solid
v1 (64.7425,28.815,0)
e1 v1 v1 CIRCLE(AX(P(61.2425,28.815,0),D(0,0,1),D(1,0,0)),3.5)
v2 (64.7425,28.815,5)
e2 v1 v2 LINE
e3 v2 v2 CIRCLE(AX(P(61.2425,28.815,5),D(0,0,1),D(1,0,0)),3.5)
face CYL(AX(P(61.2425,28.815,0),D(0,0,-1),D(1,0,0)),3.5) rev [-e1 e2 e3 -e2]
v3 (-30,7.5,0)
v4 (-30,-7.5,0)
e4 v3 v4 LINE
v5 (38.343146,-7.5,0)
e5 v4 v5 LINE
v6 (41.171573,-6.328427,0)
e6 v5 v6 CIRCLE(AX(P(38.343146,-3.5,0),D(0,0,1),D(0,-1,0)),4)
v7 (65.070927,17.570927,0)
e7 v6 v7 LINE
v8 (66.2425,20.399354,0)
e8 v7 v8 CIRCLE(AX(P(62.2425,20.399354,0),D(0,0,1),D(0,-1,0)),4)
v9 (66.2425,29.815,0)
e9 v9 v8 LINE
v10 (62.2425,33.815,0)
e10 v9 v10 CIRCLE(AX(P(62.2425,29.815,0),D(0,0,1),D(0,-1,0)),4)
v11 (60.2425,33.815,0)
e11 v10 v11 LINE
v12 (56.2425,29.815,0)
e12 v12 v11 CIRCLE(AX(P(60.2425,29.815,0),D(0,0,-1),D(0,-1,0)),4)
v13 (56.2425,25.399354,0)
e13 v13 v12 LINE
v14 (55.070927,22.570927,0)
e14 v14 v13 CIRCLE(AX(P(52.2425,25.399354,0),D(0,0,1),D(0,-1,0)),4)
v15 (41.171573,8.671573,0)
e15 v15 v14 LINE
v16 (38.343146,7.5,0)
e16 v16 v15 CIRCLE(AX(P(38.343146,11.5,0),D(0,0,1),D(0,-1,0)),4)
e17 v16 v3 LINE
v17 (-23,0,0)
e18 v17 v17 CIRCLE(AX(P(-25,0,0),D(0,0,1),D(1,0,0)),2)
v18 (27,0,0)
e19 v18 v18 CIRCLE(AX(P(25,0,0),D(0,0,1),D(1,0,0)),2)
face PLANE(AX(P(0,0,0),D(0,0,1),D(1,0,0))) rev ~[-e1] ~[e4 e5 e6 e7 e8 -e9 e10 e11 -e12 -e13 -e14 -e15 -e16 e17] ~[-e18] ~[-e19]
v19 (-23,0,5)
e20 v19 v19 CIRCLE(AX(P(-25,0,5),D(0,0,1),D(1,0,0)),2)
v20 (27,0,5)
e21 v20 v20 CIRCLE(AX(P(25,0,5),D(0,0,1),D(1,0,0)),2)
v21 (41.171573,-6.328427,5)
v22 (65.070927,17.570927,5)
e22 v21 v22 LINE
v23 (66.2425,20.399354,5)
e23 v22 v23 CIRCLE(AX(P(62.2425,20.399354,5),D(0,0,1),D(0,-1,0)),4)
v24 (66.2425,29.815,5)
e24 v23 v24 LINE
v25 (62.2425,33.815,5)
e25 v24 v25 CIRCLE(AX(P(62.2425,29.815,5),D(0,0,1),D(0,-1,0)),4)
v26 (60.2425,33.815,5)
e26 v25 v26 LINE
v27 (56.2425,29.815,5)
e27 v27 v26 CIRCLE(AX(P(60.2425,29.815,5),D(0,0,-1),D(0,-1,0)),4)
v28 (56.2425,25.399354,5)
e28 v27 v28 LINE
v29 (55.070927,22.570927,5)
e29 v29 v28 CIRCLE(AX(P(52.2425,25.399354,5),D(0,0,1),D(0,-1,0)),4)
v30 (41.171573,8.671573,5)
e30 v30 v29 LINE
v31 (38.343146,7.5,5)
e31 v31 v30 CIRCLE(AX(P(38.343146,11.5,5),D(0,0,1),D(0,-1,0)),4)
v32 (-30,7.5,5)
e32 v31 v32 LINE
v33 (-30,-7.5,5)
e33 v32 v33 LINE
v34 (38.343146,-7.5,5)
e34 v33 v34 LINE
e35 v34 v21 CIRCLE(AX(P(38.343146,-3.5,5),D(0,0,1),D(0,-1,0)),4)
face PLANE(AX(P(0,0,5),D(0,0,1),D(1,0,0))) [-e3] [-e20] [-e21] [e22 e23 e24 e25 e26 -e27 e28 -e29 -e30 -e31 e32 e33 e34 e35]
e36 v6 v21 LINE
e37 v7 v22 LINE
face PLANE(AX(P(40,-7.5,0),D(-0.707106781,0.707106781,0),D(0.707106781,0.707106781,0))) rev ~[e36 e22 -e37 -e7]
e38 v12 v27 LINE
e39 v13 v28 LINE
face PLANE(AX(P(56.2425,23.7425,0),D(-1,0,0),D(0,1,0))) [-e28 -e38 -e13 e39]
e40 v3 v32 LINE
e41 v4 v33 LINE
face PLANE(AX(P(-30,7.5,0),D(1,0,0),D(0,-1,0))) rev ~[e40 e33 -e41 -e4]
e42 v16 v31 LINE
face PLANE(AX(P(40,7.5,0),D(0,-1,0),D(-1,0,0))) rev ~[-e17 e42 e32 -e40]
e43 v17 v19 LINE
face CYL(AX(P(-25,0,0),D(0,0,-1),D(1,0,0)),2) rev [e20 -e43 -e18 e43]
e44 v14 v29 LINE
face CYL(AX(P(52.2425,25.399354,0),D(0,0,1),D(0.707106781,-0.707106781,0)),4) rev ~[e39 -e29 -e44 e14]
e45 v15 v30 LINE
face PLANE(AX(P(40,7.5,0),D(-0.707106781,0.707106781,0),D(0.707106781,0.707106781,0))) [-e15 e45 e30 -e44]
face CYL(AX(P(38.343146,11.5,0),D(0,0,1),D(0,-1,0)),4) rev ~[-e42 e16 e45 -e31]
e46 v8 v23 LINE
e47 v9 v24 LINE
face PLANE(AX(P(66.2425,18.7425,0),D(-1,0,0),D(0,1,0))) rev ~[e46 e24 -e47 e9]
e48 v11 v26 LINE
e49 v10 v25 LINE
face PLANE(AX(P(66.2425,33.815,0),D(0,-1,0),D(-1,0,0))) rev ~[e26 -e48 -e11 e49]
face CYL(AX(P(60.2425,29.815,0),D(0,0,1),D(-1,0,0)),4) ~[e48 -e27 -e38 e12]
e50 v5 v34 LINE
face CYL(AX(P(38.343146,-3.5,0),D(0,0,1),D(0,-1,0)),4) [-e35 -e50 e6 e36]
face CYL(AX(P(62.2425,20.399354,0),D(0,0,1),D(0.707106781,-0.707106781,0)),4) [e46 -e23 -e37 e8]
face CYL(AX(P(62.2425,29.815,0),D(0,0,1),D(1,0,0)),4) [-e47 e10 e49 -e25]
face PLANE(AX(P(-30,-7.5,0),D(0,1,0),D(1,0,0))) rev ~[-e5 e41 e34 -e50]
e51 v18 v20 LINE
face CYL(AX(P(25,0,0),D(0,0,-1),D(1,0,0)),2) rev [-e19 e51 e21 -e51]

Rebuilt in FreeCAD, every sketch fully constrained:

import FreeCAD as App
import Part
import Sketcher

V = App.Vector
Q = App.Units.Quantity


def edges_at(feature, points):
    """Names of the edges that pass closest to the given points."""
    edges = feature.Shape.Edges
    near = lambda p: min(range(len(edges)), key=lambda i: edges[i].distToShape(Part.Vertex(*p))[0])
    return sorted({f"Edge{near(p) + 1}" for p in points})

doc = App.newDocument("Part")
body = doc.addObject("PartDesign::Body", "Body")

sketch1 = body.newObject("Sketcher::SketchObject", "Sketch")
sketch1.AttachmentSupport = (doc.getObject("XY_Plane"), [""])
sketch1.MapMode = "FlatFace"
sketch1.addGeometry([
    Part.LineSegment(V(-30, 7.5, 0), V(-30, -7.5, 0)),
    Part.LineSegment(V(-30, -7.5, 0), V(40, -7.5, 0)),
    Part.LineSegment(V(40, -7.5, 0), V(66.2, 18.7, 0)),
    Part.LineSegment(V(66.2, 18.7, 0), V(66.2, 33.8, 0)),
    Part.LineSegment(V(66.2, 33.8, 0), V(56.2, 33.8, 0)),
    Part.LineSegment(V(56.2, 33.8, 0), V(56.2, 23.7, 0)),
    Part.LineSegment(V(56.2, 23.7, 0), V(40, 7.5, 0)),
    Part.LineSegment(V(40, 7.5, 0), V(-30, 7.5, 0)),
    Part.Circle(V(-25, 0, 0), V(0, 0, 1), 2),
    Part.Circle(V(25, 0, 0), V(0, 0, 1), 2),
    Part.Circle(V(61.2, 28.8, 0), V(0, 0, 1), 3.5),
], False)
sketch1.addConstraint([
    Sketcher.Constraint("Coincident", 0, 2, 1, 1),
    Sketcher.Constraint("Coincident", 1, 2, 2, 1),
    Sketcher.Constraint("Coincident", 2, 2, 3, 1),
    Sketcher.Constraint("Coincident", 3, 2, 4, 1),
    Sketcher.Constraint("Coincident", 4, 2, 5, 1),
    Sketcher.Constraint("Coincident", 5, 2, 6, 1),
    Sketcher.Constraint("Coincident", 6, 2, 7, 1),
    Sketcher.Constraint("Coincident", 7, 2, 0, 1),
    Sketcher.Constraint("Vertical", 0),
    Sketcher.Constraint("Horizontal", 1),
    Sketcher.Constraint("Vertical", 3),
    Sketcher.Constraint("Horizontal", 4),
    Sketcher.Constraint("Vertical", 5),
    Sketcher.Constraint("Horizontal", 7),
    Sketcher.Constraint("Equal", 8, 9),
    Sketcher.Constraint("Symmetric", 8, 3, 9, 3, -1, 1),
    Sketcher.Constraint("Symmetric", 1, 2, 6, 2, -1),
    Sketcher.Constraint("PointOnObject", 8, 3, -1),
    Sketcher.Constraint("Parallel", 2, 6),
    Sketcher.Constraint("Diameter", 8, 4.0),
    Sketcher.Constraint("Diameter", 10, 7.0),
    Sketcher.Constraint("DistanceX", 1, 1, 1, 2, 70.0),
    Sketcher.Constraint("DistanceX", 4, 2, 4, 1, 10.0),
    Sketcher.Constraint("DistanceY", 0, 2, 0, 1, 15.0),
    Sketcher.Constraint("Angle", 2, Q("45 deg")),
    Sketcher.Constraint("DistanceX", 0, 2, 8, 3, 5.0),
    Sketcher.Constraint("DistanceX", 9, 3, 1, 2, 15.0),
    Sketcher.Constraint("DistanceX", 10, 3, 2, 2, 5.0),
    Sketcher.Constraint("DistanceY", 10, 3, 3, 2, 5.0),
    Sketcher.Constraint("DistanceY", 3, 1, 3, 2, 15.0725),
    Sketcher.Constraint("DistanceY", -1, 1, 10, 3, 28.815),
])
pad1 = body.newObject("PartDesign::Pad", "Pad")
pad1.Profile = sketch1
pad1.Length = 5
doc.recompute()

fillet = body.newObject("PartDesign::Fillet", "Fillet")
fillet.Base = (pad1, edges_at(pad1, [
    (40, 7.5, 2.5),
    (56.242, 33.815, 2.5),
    (66.243, 33.815, 2.5),
    (66.243, 18.742, 2.5),
    (40, -7.5, 2.5),
    (56.242, 23.742, 2.5),
]))
fillet.Radius = 4

doc.recompute()
